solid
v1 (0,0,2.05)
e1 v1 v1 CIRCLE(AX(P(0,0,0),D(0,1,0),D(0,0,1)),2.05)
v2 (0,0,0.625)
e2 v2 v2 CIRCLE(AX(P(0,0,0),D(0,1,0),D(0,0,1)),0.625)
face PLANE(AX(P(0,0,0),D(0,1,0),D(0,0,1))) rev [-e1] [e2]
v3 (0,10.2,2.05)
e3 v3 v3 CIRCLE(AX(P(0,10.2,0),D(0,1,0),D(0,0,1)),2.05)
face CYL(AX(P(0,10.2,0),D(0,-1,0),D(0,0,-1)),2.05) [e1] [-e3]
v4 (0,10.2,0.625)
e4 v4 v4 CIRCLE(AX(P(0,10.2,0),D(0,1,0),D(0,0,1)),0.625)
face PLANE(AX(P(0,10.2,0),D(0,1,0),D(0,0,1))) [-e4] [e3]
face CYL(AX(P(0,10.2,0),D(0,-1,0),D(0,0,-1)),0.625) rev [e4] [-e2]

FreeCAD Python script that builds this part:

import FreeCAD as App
import Part
import Sketcher

V = App.Vector
Q = App.Units.Quantity

doc = App.newDocument("Part")
params = doc.addObject("Spreadsheet::Sheet", "Params")
for row, (alias, value) in enumerate([
    ("sketch1_diameter", "4.1 mm"),
    ("sketch1_diameter2", "1.25 mm"),
    ("pad1_length", "10.2 mm"),
], start=1):
    params.set(f"A{row}", alias)
    params.set(f"B{row}", "=" + value)
    params.setAlias(f"B{row}", alias)

body = doc.addObject("PartDesign::Body", "Body")

# Sketch on XZ plane
sketch1 = doc.addObject("Sketcher::SketchObject", "Sketch")
body.addObject(sketch1)
sketch1.AttachmentSupport = (doc.XZ_Plane, [""])
sketch1.MapMode = "FlatFace"
sketch1.addGeometry([
    Part.Circle(V(0, 0, 0), V(0, 0, 1), 2.05),
    Part.Circle(V(0, 0, 0), V(0, 0, 1), 0.625),
], False)
sketch1.addConstraint([
    Sketcher.Constraint("Coincident", 0, 3, -1, 1),
    Sketcher.Constraint("Coincident", 1, 3, -1, 1),
    Sketcher.Constraint("Diameter", 0, Q("4.1 mm")),
    Sketcher.Constraint("Diameter", 1, Q("1.25 mm")),
])
sketch1.setExpression("Constraints[2]", "Params.sketch1_diameter")
sketch1.setExpression("Constraints[3]", "Params.sketch1_diameter2")
pad1 = doc.addObject("PartDesign::Pad", "Pad")
body.addObject(pad1)
pad1.Profile = sketch1
pad1.setExpression("Length", "Params.pad1_length")
pad1.Reversed = True

doc.recompute()
